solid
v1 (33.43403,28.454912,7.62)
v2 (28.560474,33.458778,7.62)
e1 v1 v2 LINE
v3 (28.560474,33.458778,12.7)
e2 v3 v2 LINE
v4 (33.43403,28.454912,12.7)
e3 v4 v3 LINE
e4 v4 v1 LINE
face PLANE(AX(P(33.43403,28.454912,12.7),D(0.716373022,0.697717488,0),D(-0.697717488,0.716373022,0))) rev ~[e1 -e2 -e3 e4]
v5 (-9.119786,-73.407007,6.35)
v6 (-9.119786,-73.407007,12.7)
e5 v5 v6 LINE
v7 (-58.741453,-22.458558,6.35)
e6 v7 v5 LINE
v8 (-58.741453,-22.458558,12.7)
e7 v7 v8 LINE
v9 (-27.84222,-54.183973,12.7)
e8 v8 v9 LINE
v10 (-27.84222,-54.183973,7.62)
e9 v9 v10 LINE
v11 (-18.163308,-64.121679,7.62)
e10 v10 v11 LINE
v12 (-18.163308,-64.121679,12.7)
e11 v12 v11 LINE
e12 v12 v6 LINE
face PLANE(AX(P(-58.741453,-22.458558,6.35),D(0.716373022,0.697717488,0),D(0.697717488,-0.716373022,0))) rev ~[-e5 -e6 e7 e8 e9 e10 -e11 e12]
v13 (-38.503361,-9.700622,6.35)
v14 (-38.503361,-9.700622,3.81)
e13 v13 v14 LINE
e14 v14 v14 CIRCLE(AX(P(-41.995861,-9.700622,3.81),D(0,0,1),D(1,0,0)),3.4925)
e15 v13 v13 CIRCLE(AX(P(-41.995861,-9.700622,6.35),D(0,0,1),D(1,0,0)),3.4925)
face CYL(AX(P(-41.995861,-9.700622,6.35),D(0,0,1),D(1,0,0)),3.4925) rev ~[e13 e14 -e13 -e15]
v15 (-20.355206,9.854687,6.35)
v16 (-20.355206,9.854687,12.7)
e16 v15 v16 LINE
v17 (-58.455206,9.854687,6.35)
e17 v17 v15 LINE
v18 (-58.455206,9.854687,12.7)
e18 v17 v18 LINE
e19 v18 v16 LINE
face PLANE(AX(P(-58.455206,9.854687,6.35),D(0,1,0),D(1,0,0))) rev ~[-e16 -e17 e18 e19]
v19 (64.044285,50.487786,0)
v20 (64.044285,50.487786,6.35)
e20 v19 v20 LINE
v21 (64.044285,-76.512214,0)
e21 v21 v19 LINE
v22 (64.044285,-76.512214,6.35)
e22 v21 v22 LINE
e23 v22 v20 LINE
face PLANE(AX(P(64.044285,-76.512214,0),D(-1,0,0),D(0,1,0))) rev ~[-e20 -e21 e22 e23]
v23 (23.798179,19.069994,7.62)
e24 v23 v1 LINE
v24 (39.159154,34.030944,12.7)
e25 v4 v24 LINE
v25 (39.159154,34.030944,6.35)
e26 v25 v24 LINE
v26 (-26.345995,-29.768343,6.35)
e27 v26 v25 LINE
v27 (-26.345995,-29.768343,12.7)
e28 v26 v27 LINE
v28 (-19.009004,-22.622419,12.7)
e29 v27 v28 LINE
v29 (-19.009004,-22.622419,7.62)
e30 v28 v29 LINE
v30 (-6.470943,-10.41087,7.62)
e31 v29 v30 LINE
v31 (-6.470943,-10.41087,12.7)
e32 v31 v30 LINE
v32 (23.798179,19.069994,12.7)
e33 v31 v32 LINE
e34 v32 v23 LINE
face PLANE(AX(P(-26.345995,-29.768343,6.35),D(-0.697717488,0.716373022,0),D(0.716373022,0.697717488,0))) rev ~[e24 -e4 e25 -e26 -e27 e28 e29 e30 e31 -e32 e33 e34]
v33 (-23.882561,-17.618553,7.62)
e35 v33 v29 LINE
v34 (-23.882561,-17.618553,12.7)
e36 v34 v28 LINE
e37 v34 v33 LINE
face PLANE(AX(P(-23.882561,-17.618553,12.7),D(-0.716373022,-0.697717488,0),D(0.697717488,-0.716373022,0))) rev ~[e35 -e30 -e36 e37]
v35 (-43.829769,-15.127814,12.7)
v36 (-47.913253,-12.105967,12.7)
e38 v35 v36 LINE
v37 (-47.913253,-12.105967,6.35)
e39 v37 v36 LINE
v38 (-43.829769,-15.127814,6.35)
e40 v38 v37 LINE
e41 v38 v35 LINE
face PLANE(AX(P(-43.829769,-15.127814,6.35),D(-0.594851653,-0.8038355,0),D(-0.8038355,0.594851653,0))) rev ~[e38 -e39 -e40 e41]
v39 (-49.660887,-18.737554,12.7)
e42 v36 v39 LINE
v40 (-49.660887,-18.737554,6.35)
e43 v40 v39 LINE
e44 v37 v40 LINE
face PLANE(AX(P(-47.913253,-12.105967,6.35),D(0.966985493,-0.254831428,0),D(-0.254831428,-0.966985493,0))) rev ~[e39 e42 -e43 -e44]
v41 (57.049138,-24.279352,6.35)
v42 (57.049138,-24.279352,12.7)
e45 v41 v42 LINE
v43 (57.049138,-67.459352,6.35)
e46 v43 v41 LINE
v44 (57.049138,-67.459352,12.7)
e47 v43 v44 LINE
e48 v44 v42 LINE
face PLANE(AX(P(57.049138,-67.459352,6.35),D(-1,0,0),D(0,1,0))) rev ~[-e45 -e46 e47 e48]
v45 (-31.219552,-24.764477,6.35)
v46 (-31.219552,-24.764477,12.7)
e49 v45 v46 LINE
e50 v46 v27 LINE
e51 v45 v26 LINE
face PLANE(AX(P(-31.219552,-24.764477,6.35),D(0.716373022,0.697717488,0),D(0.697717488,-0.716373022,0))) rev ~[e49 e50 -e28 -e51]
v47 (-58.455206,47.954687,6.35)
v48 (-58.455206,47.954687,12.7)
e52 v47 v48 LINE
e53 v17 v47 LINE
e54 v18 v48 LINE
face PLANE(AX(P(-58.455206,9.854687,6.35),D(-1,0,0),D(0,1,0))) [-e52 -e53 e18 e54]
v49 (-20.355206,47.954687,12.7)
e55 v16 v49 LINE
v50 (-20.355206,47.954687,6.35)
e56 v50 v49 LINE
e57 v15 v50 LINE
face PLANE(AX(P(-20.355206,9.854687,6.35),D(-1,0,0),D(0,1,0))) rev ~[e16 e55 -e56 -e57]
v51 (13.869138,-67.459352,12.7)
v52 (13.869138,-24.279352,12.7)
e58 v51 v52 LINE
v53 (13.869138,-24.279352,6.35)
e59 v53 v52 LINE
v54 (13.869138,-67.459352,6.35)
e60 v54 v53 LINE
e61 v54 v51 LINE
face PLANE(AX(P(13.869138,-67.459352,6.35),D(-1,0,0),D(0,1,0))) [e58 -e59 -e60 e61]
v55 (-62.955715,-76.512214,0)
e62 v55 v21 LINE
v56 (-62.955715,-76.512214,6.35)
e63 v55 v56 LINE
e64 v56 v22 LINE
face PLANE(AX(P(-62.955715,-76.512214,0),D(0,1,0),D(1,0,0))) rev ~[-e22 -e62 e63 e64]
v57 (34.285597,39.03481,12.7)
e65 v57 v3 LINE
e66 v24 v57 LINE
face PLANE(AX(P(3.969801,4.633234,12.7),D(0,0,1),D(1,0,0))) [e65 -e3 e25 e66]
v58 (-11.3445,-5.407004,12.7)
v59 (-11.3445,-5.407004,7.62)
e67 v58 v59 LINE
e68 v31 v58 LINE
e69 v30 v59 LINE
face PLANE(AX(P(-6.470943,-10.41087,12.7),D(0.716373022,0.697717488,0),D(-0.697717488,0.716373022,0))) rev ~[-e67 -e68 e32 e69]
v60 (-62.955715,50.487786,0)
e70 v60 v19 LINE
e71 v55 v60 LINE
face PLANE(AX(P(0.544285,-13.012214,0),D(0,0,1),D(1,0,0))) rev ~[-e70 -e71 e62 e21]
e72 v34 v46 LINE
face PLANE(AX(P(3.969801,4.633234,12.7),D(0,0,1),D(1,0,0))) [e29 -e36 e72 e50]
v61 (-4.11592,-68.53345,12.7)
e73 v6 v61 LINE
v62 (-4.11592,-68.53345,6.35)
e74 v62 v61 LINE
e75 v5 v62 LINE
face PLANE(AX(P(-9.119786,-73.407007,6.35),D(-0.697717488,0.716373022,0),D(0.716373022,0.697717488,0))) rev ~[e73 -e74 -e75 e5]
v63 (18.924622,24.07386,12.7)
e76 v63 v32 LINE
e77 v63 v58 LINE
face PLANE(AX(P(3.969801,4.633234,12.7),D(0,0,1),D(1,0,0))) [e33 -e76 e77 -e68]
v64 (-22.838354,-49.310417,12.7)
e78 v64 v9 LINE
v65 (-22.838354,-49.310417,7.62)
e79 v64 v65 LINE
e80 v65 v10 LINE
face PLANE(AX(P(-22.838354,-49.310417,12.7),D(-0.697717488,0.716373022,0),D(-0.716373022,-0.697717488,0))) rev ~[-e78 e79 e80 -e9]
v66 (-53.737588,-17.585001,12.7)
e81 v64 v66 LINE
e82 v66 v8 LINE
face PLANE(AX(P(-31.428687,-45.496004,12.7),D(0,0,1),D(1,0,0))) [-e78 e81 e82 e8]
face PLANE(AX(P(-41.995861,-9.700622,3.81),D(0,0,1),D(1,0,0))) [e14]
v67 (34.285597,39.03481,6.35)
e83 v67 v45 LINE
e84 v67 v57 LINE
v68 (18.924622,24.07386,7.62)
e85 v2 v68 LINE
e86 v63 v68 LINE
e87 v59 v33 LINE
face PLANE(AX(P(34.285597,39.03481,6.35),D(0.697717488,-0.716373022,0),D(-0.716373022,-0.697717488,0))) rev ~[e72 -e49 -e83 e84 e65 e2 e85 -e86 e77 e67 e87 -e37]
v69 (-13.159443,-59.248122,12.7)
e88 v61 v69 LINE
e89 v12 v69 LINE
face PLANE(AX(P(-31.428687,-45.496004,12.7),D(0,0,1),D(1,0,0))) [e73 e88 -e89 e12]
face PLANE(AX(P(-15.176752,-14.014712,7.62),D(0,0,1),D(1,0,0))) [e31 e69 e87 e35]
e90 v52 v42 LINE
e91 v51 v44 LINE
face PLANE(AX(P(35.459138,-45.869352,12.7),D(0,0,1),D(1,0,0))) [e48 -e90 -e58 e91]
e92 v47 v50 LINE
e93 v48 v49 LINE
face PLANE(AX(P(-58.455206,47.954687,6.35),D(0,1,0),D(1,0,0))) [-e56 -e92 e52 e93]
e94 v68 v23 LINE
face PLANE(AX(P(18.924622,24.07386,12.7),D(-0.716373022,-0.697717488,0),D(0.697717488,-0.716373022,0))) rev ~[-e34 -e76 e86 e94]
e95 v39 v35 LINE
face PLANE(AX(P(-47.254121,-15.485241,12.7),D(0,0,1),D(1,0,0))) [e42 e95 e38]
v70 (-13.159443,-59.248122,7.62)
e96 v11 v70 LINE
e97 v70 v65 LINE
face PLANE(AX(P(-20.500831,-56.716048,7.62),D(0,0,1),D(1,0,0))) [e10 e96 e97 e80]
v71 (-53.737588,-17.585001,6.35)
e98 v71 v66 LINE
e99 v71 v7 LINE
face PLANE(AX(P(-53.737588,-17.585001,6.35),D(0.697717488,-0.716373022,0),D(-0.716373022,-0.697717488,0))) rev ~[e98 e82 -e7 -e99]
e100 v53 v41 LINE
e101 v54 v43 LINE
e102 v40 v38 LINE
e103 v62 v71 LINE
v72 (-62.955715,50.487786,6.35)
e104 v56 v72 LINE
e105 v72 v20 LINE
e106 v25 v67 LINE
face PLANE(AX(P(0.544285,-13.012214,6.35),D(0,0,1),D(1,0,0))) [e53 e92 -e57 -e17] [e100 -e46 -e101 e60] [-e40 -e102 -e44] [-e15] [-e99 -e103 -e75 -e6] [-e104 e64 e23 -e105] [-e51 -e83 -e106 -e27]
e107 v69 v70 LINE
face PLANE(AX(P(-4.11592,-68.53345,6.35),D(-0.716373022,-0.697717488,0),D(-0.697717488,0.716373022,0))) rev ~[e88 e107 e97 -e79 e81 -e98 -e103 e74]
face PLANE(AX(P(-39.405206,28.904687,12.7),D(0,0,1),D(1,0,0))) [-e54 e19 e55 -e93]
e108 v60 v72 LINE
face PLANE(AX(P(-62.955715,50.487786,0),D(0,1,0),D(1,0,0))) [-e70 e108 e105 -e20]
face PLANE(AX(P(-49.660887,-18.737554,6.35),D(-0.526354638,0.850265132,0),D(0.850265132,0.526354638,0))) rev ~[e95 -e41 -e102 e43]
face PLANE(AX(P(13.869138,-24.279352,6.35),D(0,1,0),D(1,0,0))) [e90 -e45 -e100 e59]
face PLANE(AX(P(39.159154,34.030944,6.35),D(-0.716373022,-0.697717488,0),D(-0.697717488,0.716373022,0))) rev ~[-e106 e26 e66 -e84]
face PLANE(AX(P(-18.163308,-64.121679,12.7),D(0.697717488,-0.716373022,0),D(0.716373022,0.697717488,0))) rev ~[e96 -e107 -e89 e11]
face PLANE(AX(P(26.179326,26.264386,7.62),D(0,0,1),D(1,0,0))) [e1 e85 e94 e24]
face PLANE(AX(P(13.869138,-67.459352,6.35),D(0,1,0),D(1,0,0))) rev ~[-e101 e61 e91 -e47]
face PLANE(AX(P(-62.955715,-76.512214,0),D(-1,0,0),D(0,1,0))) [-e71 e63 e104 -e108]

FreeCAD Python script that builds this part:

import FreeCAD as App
import Part
import Sketcher
from FreeCAD import Vector
Q = App.Units.Quantity


def add_polygon(sketch, points):
    """Adds a closed chain of lines whose ends are joined by coincident constraints."""
    first, n = sketch.GeometryCount, len(points)
    for a, b in zip(points, points[1:] + points[:1]):
        sketch.addGeometry(Part.LineSegment(App.Vector(*a, 0), App.Vector(*b, 0)), False)
    for i in range(n):
        sketch.addConstraint(Sketcher.Constraint("Coincident", first + i, 2, first + (i + 1) % n, 1))

doc = App.newDocument("Part")
body = doc.addObject("PartDesign::Body", "Body")

sketch1 = body.newObject("Sketcher::SketchObject", "Sketch")
sketch1.AttachmentSupport = (doc.getObject("XY_Plane"), [""])
sketch1.MapMode = "FlatFace"
add_polygon(sketch1, [(-62.955715, 50.487786), (-62.955715, -76.512214), (64.044285, -76.512214), (64.044285, 50.487786)])
sketch1.addConstraint(Sketcher.Constraint("Vertical", 0))
sketch1.addConstraint(Sketcher.Constraint("Horizontal", 1))
sketch1.addConstraint(Sketcher.Constraint("Vertical", 2))
sketch1.addConstraint(Sketcher.Constraint("Horizontal", 3))
sketch1.addConstraint(Sketcher.Constraint("Equal", 3, 0))
sketch1.addConstraint(Sketcher.Constraint("DistanceX", 1, 1, 1, 2, Q("5 in")))
sketch1.addConstraint(Sketcher.Constraint("DistanceX", 0, 2, -1, 1, 62.955715))
sketch1.addConstraint(Sketcher.Constraint("DistanceY", 0, 2, -1, 1, 76.512214))
pad1 = body.newObject("PartDesign::Pad", "Pad")
pad1.Profile = sketch1
pad1.Length = Q("0.25 in")

sketch2 = body.newObject("Sketcher::SketchObject", "Sketch001")
sketch2.AttachmentSupport = (doc.getObject("XY_Plane"), [""])
sketch2.MapMode = "FlatFace"
sketch2.AttachmentOffset = App.Placement(Vector(0, 0, 0.25 * 25.4), App.Rotation())
add_polygon(sketch2, [(-53.737588, -17.585001), (-58.741453, -22.458558), (-9.119786, -73.407007), (-4.11592, -68.53345)])
sketch2.addConstraint(Sketcher.Constraint("Perpendicular", 0, 1))
sketch2.addConstraint(Sketcher.Constraint("Perpendicular", 1, 2))
sketch2.addConstraint(Sketcher.Constraint("Perpendicular", 2, 3))
sketch2.addConstraint(Sketcher.Constraint("Distance", 1, Q("2.8 in")))
sketch2.addConstraint(Sketcher.Constraint("Distance", 0, Q("0.275 in")))
sketch2.addConstraint(Sketcher.Constraint("DistanceY", 3, 2, -1, 1, 17.585001))
sketch2.addConstraint(Sketcher.Constraint("DistanceX", 2, 2, -1, 1, 4.11592))
sketch2.addConstraint(Sketcher.Constraint("DistanceY", 2, 2, -1, 1, 68.53345))
pad2 = body.newObject("PartDesign::Pad", "Pad001")
pad2.Profile = sketch2
pad2.Length = Q("0.25 in")

sketch3 = body.newObject("Sketcher::SketchObject", "Sketch002")
sketch3.AttachmentSupport = (doc.getObject("XY_Plane"), [""])
sketch3.MapMode = "FlatFace"
sketch3.AttachmentOffset = App.Placement(Vector(0, 0, 0.5 * 25.4), App.Rotation())
add_polygon(sketch3, [(-22.838354, -49.310417), (-27.84222, -54.183973), (-18.163308, -64.121679), (-13.159443, -59.248122)])
sketch3.addConstraint(Sketcher.Constraint("Perpendicular", 0, 1))
sketch3.addConstraint(Sketcher.Constraint("Perpendicular", 1, 2))
sketch3.addConstraint(Sketcher.Constraint("Perpendicular", 2, 3))
sketch3.addConstraint(Sketcher.Constraint("Distance", 0, Q("0.275 in")))
sketch3.addConstraint(Sketcher.Constraint("Distance", 1, 13.87225))
sketch3.addConstraint(Sketcher.Constraint("DistanceX", 0, 2, -1, 1, 27.84222))
sketch3.addConstraint(Sketcher.Constraint("DistanceX", 1, 2, -1, 1, 18.163308))
sketch3.addConstraint(Sketcher.Constraint("DistanceY", 1, 2, -1, 1, 64.121679))
pocket1 = body.newObject("PartDesign::Pocket", "Pocket")
pocket1.Profile = sketch3
pocket1.Length = Q("0.2 in")

sketch4 = body.newObject("Sketcher::SketchObject", "Sketch003")
sketch4.AttachmentSupport = (doc.getObject("XY_Plane"), [""])
sketch4.MapMode = "FlatFace"
sketch4.AttachmentOffset = App.Placement(Vector(0, 0, 0.25 * 25.4), App.Rotation())
add_polygon(sketch4, [(13.869138, -24.279352), (13.869138, -67.459352), (57.049138, -67.459352), (57.049138, -24.279352)])
sketch4.addConstraint(Sketcher.Constraint("Vertical", 0))
sketch4.addConstraint(Sketcher.Constraint("Horizontal", 1))
sketch4.addConstraint(Sketcher.Constraint("Vertical", 2))
sketch4.addConstraint(Sketcher.Constraint("Horizontal", 3))
sketch4.addConstraint(Sketcher.Constraint("Equal", 3, 0))
sketch4.addConstraint(Sketcher.Constraint("DistanceX", 1, 1, 1, 2, Q("1.7 in")))
sketch4.addConstraint(Sketcher.Constraint("DistanceX", -1, 1, 0, 2, 13.869138))
sketch4.addConstraint(Sketcher.Constraint("DistanceY", 0, 2, -1, 1, 67.459352))
pad3 = body.newObject("PartDesign::Pad", "Pad002")
pad3.Profile = sketch4
pad3.Length = Q("0.25 in")

sketch5 = body.newObject("Sketcher::SketchObject", "Sketch004")
sketch5.AttachmentSupport = (doc.getObject("XY_Plane"), [""])
sketch5.MapMode = "FlatFace"
sketch5.AttachmentOffset = App.Placement(Vector(0, 0, 0.25 * 25.4), App.Rotation())
add_polygon(sketch5, [(34.285597, 39.03481), (-31.219552, -24.764477), (-26.345995, -29.768343), (39.159154, 34.030944)])
sketch5.addConstraint(Sketcher.Constraint("Perpendicular", 0, 1))
sketch5.addConstraint(Sketcher.Constraint("Perpendicular", 1, 2))
sketch5.addConstraint(Sketcher.Constraint("Perpendicular", 2, 3))
sketch5.addConstraint(Sketcher.Constraint("Distance", 0, Q("3.6 in")))
sketch5.addConstraint(Sketcher.Constraint("Distance", 1, Q("0.275 in")))
sketch5.addConstraint(Sketcher.Constraint("DistanceX", 0, 2, -1, 1, 31.219552))
sketch5.addConstraint(Sketcher.Constraint("DistanceY", -1, 1, 3, 2, 39.03481))
sketch5.addConstraint(Sketcher.Constraint("DistanceX", 1, 2, 2, 2, 65.505149))
pad4 = body.newObject("PartDesign::Pad", "Pad003")
pad4.Profile = sketch5
pad4.Length = Q("0.25 in")

sketch6 = body.newObject("Sketcher::SketchObject", "Sketch005")
sketch6.AttachmentSupport = (doc.getObject("XY_Plane"), [""])
sketch6.MapMode = "FlatFace"
sketch6.AttachmentOffset = App.Placement(Vector(0, 0, 0.5 * 25.4), App.Rotation())
add_polygon(sketch6, [(-11.3445, -5.407004), (-23.882561, -17.618553), (-19.009004, -22.622419), (-6.470943, -10.41087)])
add_polygon(sketch6, [(28.560474, 33.458778), (18.924622, 24.07386), (23.798179, 19.069994), (33.43403, 28.454912)])
sketch6.addConstraint(Sketcher.Constraint("Perpendicular", 0, 1))
sketch6.addConstraint(Sketcher.Constraint("Perpendicular", 1, 2))
sketch6.addConstraint(Sketcher.Constraint("Perpendicular", 2, 3))
sketch6.addConstraint(Sketcher.Constraint("Perpendicular", 3, 4))
sketch6.addConstraint(Sketcher.Constraint("Perpendicular", 4, 5))
sketch6.addConstraint(Sketcher.Constraint("Perpendicular", 5, 6))
sketch6.addConstraint(Sketcher.Constraint("Perpendicular", 6, 7))
sketch6.addConstraint(Sketcher.Constraint("Equal", 3, 5))
sketch6.addConstraint(Sketcher.Constraint("Distance", 1, Q("0.275 in")))
sketch6.addConstraint(Sketcher.Constraint("DistanceX", 3, 2, -1, 1, 11.3445))
sketch6.addConstraint(Sketcher.Constraint("DistanceY", 3, 2, 5, 2, 24.476999))
sketch6.addConstraint(Sketcher.Constraint("Distance", 0, 17.50214))
sketch6.addConstraint(Sketcher.Constraint("DistanceX", 0, 2, -1, 1, 23.882561))
sketch6.addConstraint(Sketcher.Constraint("DistanceY", 1, 2, -1, 1, 22.622419))
sketch6.addConstraint(Sketcher.Constraint("DistanceX", -1, 1, 5, 2, 23.798179))
sketch6.addConstraint(Sketcher.Constraint("DistanceX", -1, 1, 6, 2, 33.43403))
pocket2 = body.newObject("PartDesign::Pocket", "Pocket001")
pocket2.Profile = sketch6
pocket2.Length = Q("0.2 in")

sketch7 = body.newObject("Sketcher::SketchObject", "Sketch006")
sketch7.AttachmentSupport = (doc.getObject("XY_Plane"), [""])
sketch7.MapMode = "FlatFace"
sketch7.AttachmentOffset = App.Placement(Vector(0, 0, 0.25 * 25.4), App.Rotation())
add_polygon(sketch7, [(-58.455206, 47.954687), (-58.455206, 9.854687), (-20.355206, 9.854687), (-20.355206, 47.954687)])
sketch7.addConstraint(Sketcher.Constraint("Vertical", 0))
sketch7.addConstraint(Sketcher.Constraint("Horizontal", 1))
sketch7.addConstraint(Sketcher.Constraint("Vertical", 2))
sketch7.addConstraint(Sketcher.Constraint("Horizontal", 3))
sketch7.addConstraint(Sketcher.Constraint("Equal", 3, 0))
sketch7.addConstraint(Sketcher.Constraint("DistanceX", 1, 1, 1, 2, Q("1.5 in")))
sketch7.addConstraint(Sketcher.Constraint("DistanceX", 0, 2, -1, 1, 58.455206))
sketch7.addConstraint(Sketcher.Constraint("DistanceY", -1, 1, 0, 2, 9.854687))
pad5 = body.newObject("PartDesign::Pad", "Pad004")
pad5.Profile = sketch7
pad5.Length = Q("0.25 in")

sketch8 = body.newObject("Sketcher::SketchObject", "Sketch007")
sketch8.AttachmentSupport = (doc.getObject("XY_Plane"), [""])
sketch8.MapMode = "FlatFace"
sketch8.AttachmentOffset = App.Placement(Vector(0, 0, 0.25 * 25.4), App.Rotation())
sketch8.addGeometry(Part.Circle(Vector(-41.995861, -9.700622, 0), Vector(0, 0, 1), 3.4925), False)
sketch8.addConstraint(Sketcher.Constraint("Diameter", 0, Q("0.275 in")))
sketch8.addConstraint(Sketcher.Constraint("DistanceX", 0, 3, -1, 1, 41.995861))
sketch8.addConstraint(Sketcher.Constraint("DistanceY", 0, 3, -1, 1, 9.700622))
pocket3 = body.newObject("PartDesign::Pocket", "Pocket002")
pocket3.Profile = sketch8
pocket3.Length = Q("0.1 in")

sketch9 = body.newObject("Sketcher::SketchObject", "Sketch008")
sketch9.AttachmentSupport = (doc.getObject("XY_Plane"), [""])
sketch9.MapMode = "FlatFace"
sketch9.AttachmentOffset = App.Placement(Vector(0, 0, 0.25 * 25.4), App.Rotation())
add_polygon(sketch9, [(-43.829769, -15.127814), (-47.913253, -12.105967), (-49.660887, -18.737554)])
sketch9.addConstraint(Sketcher.Constraint("Equal", 1, 2))
sketch9.addConstraint(Sketcher.Constraint("Distance", 0, Q("0.2 in")))
sketch9.addConstraint(Sketcher.Constraint("Distance", 1, Q("0.27 in")))
sketch9.addConstraint(Sketcher.Constraint("DistanceX", 2, 2, -1, 1, 43.829769))
sketch9.addConstraint(Sketcher.Constraint("DistanceX", 1, 2, 2, 2, 5.831118))
sketch9.addConstraint(Sketcher.Constraint("DistanceY", 0, 2, -1, 1, 12.105967))
pad6 = body.newObject("PartDesign::Pad", "Pad005")
pad6.Profile = sketch9
pad6.Length = Q("0.25 in")

doc.recompute()
